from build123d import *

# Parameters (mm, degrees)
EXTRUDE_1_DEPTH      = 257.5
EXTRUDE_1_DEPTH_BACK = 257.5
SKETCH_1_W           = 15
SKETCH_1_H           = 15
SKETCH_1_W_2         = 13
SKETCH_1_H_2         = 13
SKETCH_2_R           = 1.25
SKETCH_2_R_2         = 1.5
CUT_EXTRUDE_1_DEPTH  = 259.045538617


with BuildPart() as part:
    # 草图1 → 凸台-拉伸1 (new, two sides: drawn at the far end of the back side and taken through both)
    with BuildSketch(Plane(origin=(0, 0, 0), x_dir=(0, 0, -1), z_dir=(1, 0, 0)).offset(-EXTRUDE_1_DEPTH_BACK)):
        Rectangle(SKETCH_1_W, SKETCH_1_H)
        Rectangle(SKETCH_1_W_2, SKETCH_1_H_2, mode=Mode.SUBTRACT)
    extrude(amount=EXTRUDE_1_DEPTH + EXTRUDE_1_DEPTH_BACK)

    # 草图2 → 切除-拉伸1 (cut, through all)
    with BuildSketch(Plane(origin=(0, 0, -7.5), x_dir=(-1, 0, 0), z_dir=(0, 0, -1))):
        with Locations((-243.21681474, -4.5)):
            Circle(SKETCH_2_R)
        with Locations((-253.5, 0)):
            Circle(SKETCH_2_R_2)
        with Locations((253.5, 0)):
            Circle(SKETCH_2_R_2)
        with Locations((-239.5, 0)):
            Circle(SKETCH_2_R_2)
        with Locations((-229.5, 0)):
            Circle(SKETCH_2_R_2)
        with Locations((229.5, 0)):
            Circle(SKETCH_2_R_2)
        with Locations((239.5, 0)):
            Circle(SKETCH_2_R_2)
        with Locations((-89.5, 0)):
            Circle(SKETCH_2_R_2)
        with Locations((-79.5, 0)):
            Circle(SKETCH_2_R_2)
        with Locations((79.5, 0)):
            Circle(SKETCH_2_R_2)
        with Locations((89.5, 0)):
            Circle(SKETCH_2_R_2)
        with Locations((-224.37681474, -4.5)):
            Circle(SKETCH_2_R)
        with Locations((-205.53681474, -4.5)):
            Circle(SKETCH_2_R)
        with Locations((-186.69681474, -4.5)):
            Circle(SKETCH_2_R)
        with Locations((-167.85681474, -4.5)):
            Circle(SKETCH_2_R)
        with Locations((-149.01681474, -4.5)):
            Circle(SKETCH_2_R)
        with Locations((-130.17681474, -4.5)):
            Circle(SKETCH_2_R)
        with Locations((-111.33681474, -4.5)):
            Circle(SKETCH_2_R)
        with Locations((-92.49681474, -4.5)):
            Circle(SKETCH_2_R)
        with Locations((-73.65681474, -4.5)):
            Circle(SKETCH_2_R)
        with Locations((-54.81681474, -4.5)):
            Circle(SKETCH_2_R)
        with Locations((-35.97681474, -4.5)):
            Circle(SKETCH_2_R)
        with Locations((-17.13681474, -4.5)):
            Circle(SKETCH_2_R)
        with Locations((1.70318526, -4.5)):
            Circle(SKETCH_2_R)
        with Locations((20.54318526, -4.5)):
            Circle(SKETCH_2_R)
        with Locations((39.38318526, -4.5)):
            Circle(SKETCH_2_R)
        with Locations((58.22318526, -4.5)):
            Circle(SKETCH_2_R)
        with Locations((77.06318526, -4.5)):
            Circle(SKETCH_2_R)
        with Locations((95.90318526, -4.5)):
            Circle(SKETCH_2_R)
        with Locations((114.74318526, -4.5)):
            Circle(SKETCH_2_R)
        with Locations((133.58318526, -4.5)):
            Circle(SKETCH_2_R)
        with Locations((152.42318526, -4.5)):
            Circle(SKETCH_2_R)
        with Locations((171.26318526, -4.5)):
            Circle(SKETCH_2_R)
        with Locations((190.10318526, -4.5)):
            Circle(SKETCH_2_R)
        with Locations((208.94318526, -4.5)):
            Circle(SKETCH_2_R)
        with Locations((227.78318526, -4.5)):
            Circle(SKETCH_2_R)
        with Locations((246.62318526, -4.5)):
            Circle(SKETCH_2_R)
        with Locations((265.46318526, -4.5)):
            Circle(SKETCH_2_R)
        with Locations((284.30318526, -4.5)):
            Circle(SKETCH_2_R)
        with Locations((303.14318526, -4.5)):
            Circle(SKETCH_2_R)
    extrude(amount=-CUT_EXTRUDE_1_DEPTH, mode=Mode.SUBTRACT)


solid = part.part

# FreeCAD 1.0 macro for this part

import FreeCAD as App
import Part
import Sketcher

doc = App.newDocument("Part")
body = doc.addObject("PartDesign::Body", "Body")

# Sketch on YZ plane
sketch1 = doc.addObject("Sketcher::SketchObject", "Sketch")
body.addObject(sketch1)
sketch1.AttachmentSupport = (doc.YZ_Plane, [""])
sketch1.MapMode = "FlatFace"
sketch1.addGeometry([
    Part.LineSegment(App.Vector(8, 8, 0), App.Vector(-8, 8, 0)),  # 0
    Part.LineSegment(App.Vector(-8, 8, 0), App.Vector(-8, -8, 0)),  # 1
    Part.LineSegment(App.Vector(-8, -8, 0), App.Vector(8, -8, 0)),  # 2
    Part.LineSegment(App.Vector(8, -8, 0), App.Vector(8, 8, 0)),  # 3
    Part.LineSegment(App.Vector(-6, -6, 0), App.Vector(-6, 6, 0)),  # 4
    Part.LineSegment(App.Vector(-6, 6, 0), App.Vector(6, 6, 0)),  # 5
    Part.LineSegment(App.Vector(6, 6, 0), App.Vector(6, -6, 0)),  # 6
    Part.LineSegment(App.Vector(6, -6, 0), App.Vector(-6, -6, 0)),  # 7
], False)
sketch1.addConstraint([
    Sketcher.Constraint("Coincident", 0, 2, 1, 1),
    Sketcher.Constraint("Coincident", 1, 2, 2, 1),
    Sketcher.Constraint("Coincident", 2, 2, 3, 1),
    Sketcher.Constraint("Coincident", 3, 2, 0, 1),
    Sketcher.Constraint("Coincident", 4, 2, 5, 1),
    Sketcher.Constraint("Coincident", 5, 2, 6, 1),
    Sketcher.Constraint("Coincident", 6, 2, 7, 1),
    Sketcher.Constraint("Coincident", 7, 2, 4, 1),
    Sketcher.Constraint("Horizontal", 0),
    Sketcher.Constraint("Vertical", 1),
    Sketcher.Constraint("Horizontal", 2),
    Sketcher.Constraint("Vertical", 3),
    Sketcher.Constraint("Vertical", 4),
    Sketcher.Constraint("Horizontal", 5),
    Sketcher.Constraint("Vertical", 6),
    Sketcher.Constraint("Horizontal", 7),
    Sketcher.Constraint("Symmetric", 0, 2, 2, 2, -1, 1),
    Sketcher.Constraint("Symmetric", 4, 2, 6, 2, -1, 1),
    Sketcher.Constraint("Equal", 2, 1),
    Sketcher.Constraint("Equal", 7, 4),
    Sketcher.Constraint("DistanceX", 0, 2, 0, 1, 15.0),
    Sketcher.Constraint("DistanceX", 5, 1, 5, 2, 13.0),
])
pad1 = doc.addObject("PartDesign::Pad", "Pad")
body.addObject(pad1)
pad1.Profile = sketch1
pad1.Type = "TwoLengths"
pad1.Length = 257.5
pad1.Length2 = 257.5

# Sketch on XY plane
sketch2 = doc.addObject("Sketcher::SketchObject", "Sketch001")
body.addObject(sketch2)
sketch2.AttachmentSupport = (doc.XY_Plane, [""])
sketch2.MapMode = "FlatFace"
sketch2.AttachmentOffset = App.Placement(App.Vector(0, 0, -7.5), App.Rotation())
sketch2.addGeometry([
    Part.Circle(App.Vector(243.2, -4.5, 0), App.Vector(0, 0, 1), 1.2),  # 0
    Part.Circle(App.Vector(253.5, 0, 0), App.Vector(0, 0, 1), 1.5),  # 1
    Part.Circle(App.Vector(-253.5, 0, 0), App.Vector(0, 0, 1), 1.5),  # 2
    Part.Circle(App.Vector(239.5, 0, 0), App.Vector(0, 0, 1), 1.5),  # 3
    Part.Circle(App.Vector(229.5, 0, 0), App.Vector(0, 0, 1), 1.5),  # 4
    Part.Circle(App.Vector(-229.5, 0, 0), App.Vector(0, 0, 1), 1.5),  # 5
    Part.Circle(App.Vector(-239.5, 0, 0), App.Vector(0, 0, 1), 1.5),  # 6
    Part.Circle(App.Vector(89.5, 0, 0), App.Vector(0, 0, 1), 1.5),  # 7
    Part.Circle(App.Vector(79.5, 0, 0), App.Vector(0, 0, 1), 1.5),  # 8
    Part.Circle(App.Vector(-79.5, 0, 0), App.Vector(0, 0, 1), 1.5),  # 9
    Part.Circle(App.Vector(-89.5, 0, 0), App.Vector(0, 0, 1), 1.5),  # 10
    Part.Circle(App.Vector(224.4, -4.5, 0), App.Vector(0, 0, 1), 1.2),  # 11
    Part.Circle(App.Vector(205.5, -4.5, 0), App.Vector(0, 0, 1), 1.2),  # 12
    Part.Circle(App.Vector(186.7, -4.5, 0), App.Vector(0, 0, 1), 1.2),  # 13
    Part.Circle(App.Vector(167.9, -4.5, 0), App.Vector(0, 0, 1), 1.2),  # 14
    Part.Circle(App.Vector(149, -4.5, 0), App.Vector(0, 0, 1), 1.2),  # 15
    Part.Circle(App.Vector(130.2, -4.5, 0), App.Vector(0, 0, 1), 1.2),  # 16
    Part.Circle(App.Vector(111.3, -4.5, 0), App.Vector(0, 0, 1), 1.2),  # 17
    Part.Circle(App.Vector(92.5, -4.5, 0), App.Vector(0, 0, 1), 1.2),  # 18
    Part.Circle(App.Vector(73.7, -4.5, 0), App.Vector(0, 0, 1), 1.2),  # 19
    Part.Circle(App.Vector(54.8, -4.5, 0), App.Vector(0, 0, 1), 1.2),  # 20
    Part.Circle(App.Vector(36, -4.5, 0), App.Vector(0, 0, 1), 1.2),  # 21
    Part.Circle(App.Vector(17.1, -4.5, 0), App.Vector(0, 0, 1), 1.2),  # 22
    Part.Circle(App.Vector(-1.7, -4.5, 0), App.Vector(0, 0, 1), 1.2),  # 23
    Part.Circle(App.Vector(-20.5, -4.5, 0), App.Vector(0, 0, 1), 1.2),  # 24
    Part.Circle(App.Vector(-39.4, -4.5, 0), App.Vector(0, 0, 1), 1.2),  # 25
    Part.Circle(App.Vector(-58.2, -4.5, 0), App.Vector(0, 0, 1), 1.2),  # 26
    Part.Circle(App.Vector(-77.1, -4.5, 0), App.Vector(0, 0, 1), 1.2),  # 27
    Part.Circle(App.Vector(-95.9, -4.5, 0), App.Vector(0, 0, 1), 1.2),  # 28
    Part.Circle(App.Vector(-114.7, -4.5, 0), App.Vector(0, 0, 1), 1.2),  # 29
    Part.Circle(App.Vector(-133.6, -4.5, 0), App.Vector(0, 0, 1), 1.2),  # 30
    Part.Circle(App.Vector(-152.4, -4.5, 0), App.Vector(0, 0, 1), 1.2),  # 31
    Part.Circle(App.Vector(-171.3, -4.5, 0), App.Vector(0, 0, 1), 1.2),  # 32
    Part.Circle(App.Vector(-190.1, -4.5, 0), App.Vector(0, 0, 1), 1.2),  # 33
    Part.Circle(App.Vector(-208.9, -4.5, 0), App.Vector(0, 0, 1), 1.2),  # 34
    Part.Circle(App.Vector(-227.8, -4.5, 0), App.Vector(0, 0, 1), 1.2),  # 35
    Part.Circle(App.Vector(-246.6, -4.5, 0), App.Vector(0, 0, 1), 1.2),  # 36
    Part.Circle(App.Vector(-265.5, -4.5, 0), App.Vector(0, 0, 1), 1.2),  # 37
    Part.Circle(App.Vector(-284.3, -4.5, 0), App.Vector(0, 0, 1), 1.2),  # 38
    Part.Circle(App.Vector(-303.1, -4.5, 0), App.Vector(0, 0, 1), 1.2),  # 39
], False)
sketch2.addConstraint([
    Sketcher.Constraint("Equal", 1, 2),
    Sketcher.Constraint("Equal", 2, 3),
    Sketcher.Constraint("Equal", 3, 4),
    Sketcher.Constraint("Equal", 4, 5),
    Sketcher.Constraint("Equal", 5, 6),
    Sketcher.Constraint("Equal", 6, 7),
    Sketcher.Constraint("Equal", 7, 8),
    Sketcher.Constraint("Equal", 8, 9),
    Sketcher.Constraint("Equal", 9, 10),
    Sketcher.Constraint("Equal", 0, 11),
    Sketcher.Constraint("Equal", 11, 12),
    Sketcher.Constraint("Equal", 12, 13),
    Sketcher.Constraint("Equal", 13, 14),
    Sketcher.Constraint("Equal", 14, 15),
    Sketcher.Constraint("Equal", 15, 16),
    Sketcher.Constraint("Equal", 16, 17),
    Sketcher.Constraint("Equal", 17, 18),
    Sketcher.Constraint("Equal", 18, 19),
    Sketcher.Constraint("Equal", 19, 20),
    Sketcher.Constraint("Equal", 20, 21),
    Sketcher.Constraint("Equal", 21, 22),
    Sketcher.Constraint("Equal", 22, 23),
    Sketcher.Constraint("Equal", 23, 24),
    Sketcher.Constraint("Equal", 24, 25),
    Sketcher.Constraint("Equal", 25, 26),
    Sketcher.Constraint("Equal", 26, 27),
    Sketcher.Constraint("Equal", 27, 28),
    Sketcher.Constraint("Equal", 28, 29),
    Sketcher.Constraint("Equal", 29, 30),
    Sketcher.Constraint("Equal", 30, 31),
    Sketcher.Constraint("Equal", 31, 32),
    Sketcher.Constraint("Equal", 32, 33),
    Sketcher.Constraint("Equal", 33, 34),
    Sketcher.Constraint("Equal", 34, 35),
    Sketcher.Constraint("Equal", 35, 36),
    Sketcher.Constraint("Equal", 36, 37),
    Sketcher.Constraint("Equal", 37, 38),
    Sketcher.Constraint("Equal", 38, 39),
    Sketcher.Constraint("Symmetric", 1, 3, 2, 3, -1, 1),
    Sketcher.Constraint("Symmetric", 4, 3, 5, 3, -1, 1),
    Sketcher.Constraint("Symmetric", 3, 3, 6, 3, -1, 1),
    Sketcher.Constraint("Symmetric", 8, 3, 9, 3, -1, 1),
    Sketcher.Constraint("Symmetric", 7, 3, 10, 3, -1, 1),
    Sketcher.Constraint("PointOnObject", 1, 3, -1),
    Sketcher.Constraint("PointOnObject", 3, 3, -1),
    Sketcher.Constraint("PointOnObject", 4, 3, -1),
    Sketcher.Constraint("PointOnObject", 7, 3, -1),
    Sketcher.Constraint("PointOnObject", 8, 3, -1),
    Sketcher.Constraint("Horizontal", 0, 3, 11, 3),
    Sketcher.Constraint("Horizontal", 11, 3, 12, 3),
    Sketcher.Constraint("Horizontal", 12, 3, 13, 3),
    Sketcher.Constraint("Horizontal", 13, 3, 14, 3),
    Sketcher.Constraint("Horizontal", 14, 3, 15, 3),
    Sketcher.Constraint("Horizontal", 15, 3, 16, 3),
    Sketcher.Constraint("Horizontal", 16, 3, 17, 3),
    Sketcher.Constraint("Horizontal", 17, 3, 18, 3),
    Sketcher.Constraint("Horizontal", 18, 3, 19, 3),
    Sketcher.Constraint("Horizontal", 19, 3, 20, 3),
    Sketcher.Constraint("Horizontal", 20, 3, 21, 3),
    Sketcher.Constraint("Horizontal", 21, 3, 22, 3),
    Sketcher.Constraint("Horizontal", 22, 3, 23, 3),
    Sketcher.Constraint("Horizontal", 23, 3, 24, 3),
    Sketcher.Constraint("Horizontal", 24, 3, 25, 3),
    Sketcher.Constraint("Horizontal", 25, 3, 26, 3),
    Sketcher.Constraint("Horizontal", 26, 3, 27, 3),
    Sketcher.Constraint("Horizontal", 27, 3, 28, 3),
    Sketcher.Constraint("Horizontal", 28, 3, 29, 3),
    Sketcher.Constraint("Horizontal", 29, 3, 30, 3),
    Sketcher.Constraint("Horizontal", 30, 3, 31, 3),
    Sketcher.Constraint("Horizontal", 31, 3, 32, 3),
    Sketcher.Constraint("Horizontal", 32, 3, 33, 3),
    Sketcher.Constraint("Horizontal", 33, 3, 34, 3),
    Sketcher.Constraint("Horizontal", 34, 3, 35, 3),
    Sketcher.Constraint("Horizontal", 35, 3, 36, 3),
    Sketcher.Constraint("Horizontal", 36, 3, 37, 3),
    Sketcher.Constraint("Horizontal", 37, 3, 38, 3),
    Sketcher.Constraint("Horizontal", 38, 3, 39, 3),
    Sketcher.Constraint("Diameter", 1, 3.0),
    Sketcher.Constraint("Diameter", 0, 2.5),
    Sketcher.Constraint("DistanceX", 2, 3, 1, 3, 507.0),
    Sketcher.Constraint("DistanceX", 3, 3, 1, 3, 14.0),
    Sketcher.Constraint("DistanceX", 4, 3, 3, 3, 10.0),
    Sketcher.Constraint("DistanceX", 7, 3, 4, 3, 140.0),
    Sketcher.Constraint("DistanceX", 8, 3, 7, 3, 10.0),
    Sketcher.Constraint("DistanceY", 0, 3, -1, 1, 4.5),
    Sketcher.Constraint("DistanceX", 11, 3, 0, 3, 18.84),
    Sketcher.Constraint("DistanceX", 12, 3, 11, 3, 18.84),
    Sketcher.Constraint("DistanceX", 13, 3, 12, 3, 18.84),
    Sketcher.Constraint("DistanceX", 14, 3, 13, 3, 18.84),
    Sketcher.Constraint("DistanceX", 15, 3, 14, 3, 18.84),
    Sketcher.Constraint("DistanceX", 16, 3, 15, 3, 18.84),
    Sketcher.Constraint("DistanceX", 17, 3, 16, 3, 18.84),
    Sketcher.Constraint("DistanceX", 18, 3, 17, 3, 18.84),
    Sketcher.Constraint("DistanceX", 19, 3, 18, 3, 18.84),
    Sketcher.Constraint("DistanceX", 20, 3, 19, 3, 18.84),
    Sketcher.Constraint("DistanceX", 21, 3, 20, 3, 18.84),
    Sketcher.Constraint("DistanceX", 22, 3, 21, 3, 18.84),
    Sketcher.Constraint("DistanceX", 23, 3, 22, 3, 18.84),
    Sketcher.Constraint("DistanceX", 24, 3, 23, 3, 18.84),
    Sketcher.Constraint("DistanceX", 25, 3, 24, 3, 18.84),
    Sketcher.Constraint("DistanceX", 26, 3, 25, 3, 18.84),
    Sketcher.Constraint("DistanceX", 27, 3, 26, 3, 18.84),
    Sketcher.Constraint("DistanceX", 28, 3, 27, 3, 18.84),
    Sketcher.Constraint("DistanceX", 29, 3, 28, 3, 18.84),
    Sketcher.Constraint("DistanceX", 30, 3, 29, 3, 18.84),
    Sketcher.Constraint("DistanceX", 31, 3, 30, 3, 18.84),
    Sketcher.Constraint("DistanceX", 32, 3, 31, 3, 18.84),
    Sketcher.Constraint("DistanceX", 33, 3, 32, 3, 18.84),
    Sketcher.Constraint("DistanceX", 34, 3, 33, 3, 18.84),
    Sketcher.Constraint("DistanceX", 35, 3, 34, 3, 18.84),
    Sketcher.Constraint("DistanceX", 36, 3, 35, 3, 18.84),
    Sketcher.Constraint("DistanceX", 37, 3, 36, 3, 18.84),
    Sketcher.Constraint("DistanceX", 38, 3, 37, 3, 18.84),
    Sketcher.Constraint("DistanceX", 39, 3, 38, 3, 18.84),
    Sketcher.Constraint("DistanceX", -1, 1, 0, 3, 243.216815),
])
pocket1 = doc.addObject("PartDesign::Pocket", "Pocket")
body.addObject(pocket1)
pocket1.Profile = sketch2
pocket1.Type = "ThroughAll"
pocket1.Reversed = True

doc.recompute()
